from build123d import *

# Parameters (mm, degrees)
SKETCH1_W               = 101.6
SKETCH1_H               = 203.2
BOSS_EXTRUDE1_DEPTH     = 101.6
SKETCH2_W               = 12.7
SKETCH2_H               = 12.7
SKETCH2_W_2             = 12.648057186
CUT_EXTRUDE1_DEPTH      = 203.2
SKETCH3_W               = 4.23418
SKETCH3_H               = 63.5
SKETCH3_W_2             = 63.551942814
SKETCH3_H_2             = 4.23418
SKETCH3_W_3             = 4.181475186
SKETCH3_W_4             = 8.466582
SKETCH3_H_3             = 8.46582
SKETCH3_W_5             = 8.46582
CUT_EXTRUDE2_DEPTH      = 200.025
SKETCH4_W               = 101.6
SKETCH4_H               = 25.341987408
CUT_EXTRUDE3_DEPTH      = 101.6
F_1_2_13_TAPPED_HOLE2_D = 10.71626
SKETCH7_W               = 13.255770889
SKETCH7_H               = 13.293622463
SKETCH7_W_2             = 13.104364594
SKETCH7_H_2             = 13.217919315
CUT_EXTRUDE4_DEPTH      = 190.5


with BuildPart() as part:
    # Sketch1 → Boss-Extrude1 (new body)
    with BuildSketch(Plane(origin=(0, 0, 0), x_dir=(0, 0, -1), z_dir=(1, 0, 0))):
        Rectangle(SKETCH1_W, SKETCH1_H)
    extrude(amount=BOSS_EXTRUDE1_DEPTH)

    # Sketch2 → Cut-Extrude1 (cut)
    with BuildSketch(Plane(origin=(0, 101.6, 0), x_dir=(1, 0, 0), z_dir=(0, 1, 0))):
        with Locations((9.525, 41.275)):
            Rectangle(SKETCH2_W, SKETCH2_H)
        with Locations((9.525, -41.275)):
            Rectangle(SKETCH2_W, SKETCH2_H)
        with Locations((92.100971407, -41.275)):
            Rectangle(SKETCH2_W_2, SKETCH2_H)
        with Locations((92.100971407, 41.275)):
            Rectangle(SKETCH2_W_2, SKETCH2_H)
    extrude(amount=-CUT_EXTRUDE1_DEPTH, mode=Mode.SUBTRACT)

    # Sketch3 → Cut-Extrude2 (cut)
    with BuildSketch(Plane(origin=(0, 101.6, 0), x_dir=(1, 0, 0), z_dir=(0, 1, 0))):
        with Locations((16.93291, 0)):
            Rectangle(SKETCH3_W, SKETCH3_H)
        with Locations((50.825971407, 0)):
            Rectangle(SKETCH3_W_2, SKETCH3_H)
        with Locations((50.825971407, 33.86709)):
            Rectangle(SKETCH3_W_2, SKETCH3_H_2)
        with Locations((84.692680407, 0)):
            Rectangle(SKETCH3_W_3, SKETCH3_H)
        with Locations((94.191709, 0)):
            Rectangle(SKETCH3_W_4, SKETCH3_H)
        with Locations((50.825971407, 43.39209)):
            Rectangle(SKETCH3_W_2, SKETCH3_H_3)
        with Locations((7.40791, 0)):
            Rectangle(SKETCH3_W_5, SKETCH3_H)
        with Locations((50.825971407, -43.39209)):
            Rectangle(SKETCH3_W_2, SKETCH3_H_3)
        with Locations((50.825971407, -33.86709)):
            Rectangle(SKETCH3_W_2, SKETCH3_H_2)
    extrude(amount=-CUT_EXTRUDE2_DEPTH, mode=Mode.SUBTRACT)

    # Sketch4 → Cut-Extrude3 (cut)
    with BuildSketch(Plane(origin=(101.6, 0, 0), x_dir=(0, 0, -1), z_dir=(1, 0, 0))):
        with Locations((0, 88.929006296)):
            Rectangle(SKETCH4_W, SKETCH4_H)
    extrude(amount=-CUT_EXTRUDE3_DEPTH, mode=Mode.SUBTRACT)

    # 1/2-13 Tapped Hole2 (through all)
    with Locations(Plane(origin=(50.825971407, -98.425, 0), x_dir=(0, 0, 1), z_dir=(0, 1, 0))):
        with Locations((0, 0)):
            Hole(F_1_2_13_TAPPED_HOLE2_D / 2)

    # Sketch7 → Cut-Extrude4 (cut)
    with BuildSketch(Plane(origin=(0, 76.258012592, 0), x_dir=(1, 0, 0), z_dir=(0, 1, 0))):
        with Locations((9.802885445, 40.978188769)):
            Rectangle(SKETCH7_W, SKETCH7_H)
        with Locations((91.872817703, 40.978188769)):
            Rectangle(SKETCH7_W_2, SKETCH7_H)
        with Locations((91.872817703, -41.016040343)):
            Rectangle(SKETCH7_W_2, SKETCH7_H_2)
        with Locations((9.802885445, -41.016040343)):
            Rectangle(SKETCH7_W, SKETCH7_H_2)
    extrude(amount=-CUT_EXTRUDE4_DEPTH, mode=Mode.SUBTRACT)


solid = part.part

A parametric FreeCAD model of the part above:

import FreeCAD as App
import Part
import Sketcher
from FreeCAD import Vector
Q = App.Units.Quantity

doc = App.newDocument("Part")
body = doc.addObject("PartDesign::Body", "Body")

# Sketch on YZ plane
sketch1 = doc.addObject("Sketcher::SketchObject", "Sketch")
body.addObject(sketch1)
sketch1.AttachmentSupport = (doc.YZ_Plane, [""])
sketch1.MapMode = "FlatFace"
sketch1.addGeometry([
    Part.LineSegment(Vector(101.6, 50.8, 0), Vector(-101.6, 50.8, 0)),
    Part.LineSegment(Vector(-101.6, 50.8, 0), Vector(-101.6, -50.8, 0)),
    Part.LineSegment(Vector(-101.6, -50.8, 0), Vector(101.6, -50.8, 0)),
    Part.LineSegment(Vector(101.6, -50.8, 0), Vector(101.6, 50.8, 0)),
], False)
sketch1.addConstraint([
    Sketcher.Constraint("Coincident", 0, 2, 1, 1),
    Sketcher.Constraint("Coincident", 1, 2, 2, 1),
    Sketcher.Constraint("Coincident", 2, 2, 3, 1),
    Sketcher.Constraint("Coincident", 3, 2, 0, 1),
    Sketcher.Constraint("Horizontal", 0),
    Sketcher.Constraint("Vertical", 1),
    Sketcher.Constraint("Horizontal", 2),
    Sketcher.Constraint("Vertical", 3),
    Sketcher.Constraint("Symmetric", 0, 2, 2, 2, -1, 1),
    Sketcher.Constraint("DistanceX", 0, 2, 0, 1, Q("8 in")),
    Sketcher.Constraint("DistanceY", 1, 2, 1, 1, Q("4 in")),
])
pad1 = doc.addObject("PartDesign::Pad", "Pad")
body.addObject(pad1)
pad1.Profile = sketch1
pad1.Length = Q("4 in")

# Sketch on XZ plane
sketch2 = doc.addObject("Sketcher::SketchObject", "Sketch001")
body.addObject(sketch2)
sketch2.AttachmentSupport = (doc.XZ_Plane, [""])
sketch2.MapMode = "FlatFace"
sketch2.AttachmentOffset = App.Placement(Vector(0, 0, -4 * 25.4), App.Rotation())
sketch2.addGeometry([
    Part.LineSegment(Vector(3.175, -47.625, 0), Vector(3.175, -34.925, 0)),  # 0
    Part.LineSegment(Vector(3.175, -34.925, 0), Vector(15.875, -34.925, 0)),  # 1
    Part.LineSegment(Vector(15.875, -34.925, 0), Vector(15.875, -47.625, 0)),  # 2
    Part.LineSegment(Vector(15.875, -47.625, 0), Vector(3.175, -47.625, 0)),  # 3
    Part.LineSegment(Vector(3.175, 34.925, 0), Vector(3.175, 47.625, 0)),  # 4
    Part.LineSegment(Vector(3.175, 47.625, 0), Vector(15.875, 47.625, 0)),  # 5
    Part.LineSegment(Vector(15.875, 47.625, 0), Vector(15.875, 34.925, 0)),  # 6
    Part.LineSegment(Vector(15.875, 34.925, 0), Vector(3.175, 34.925, 0)),  # 7
    Part.LineSegment(Vector(85.776943, 34.925, 0), Vector(85.776943, 47.625, 0)),  # 8
    Part.LineSegment(Vector(85.776943, 47.625, 0), Vector(98.425, 47.625, 0)),  # 9
    Part.LineSegment(Vector(98.425, 47.625, 0), Vector(98.425, 34.925, 0)),  # 10
    Part.LineSegment(Vector(98.425, 34.925, 0), Vector(85.776943, 34.925, 0)),  # 11
    Part.LineSegment(Vector(85.776943, -47.625, 0), Vector(85.776943, -34.925, 0)),  # 12
    Part.LineSegment(Vector(85.776943, -34.925, 0), Vector(98.425, -34.925, 0)),  # 13
    Part.LineSegment(Vector(98.425, -34.925, 0), Vector(98.425, -47.625, 0)),  # 14
    Part.LineSegment(Vector(98.425, -47.625, 0), Vector(85.776943, -47.625, 0)),  # 15
], False)
sketch2.addConstraint([
    Sketcher.Constraint("Coincident", 0, 2, 1, 1),
    Sketcher.Constraint("Coincident", 1, 2, 2, 1),
    Sketcher.Constraint("Coincident", 2, 2, 3, 1),
    Sketcher.Constraint("Coincident", 3, 2, 0, 1),
    Sketcher.Constraint("Coincident", 4, 2, 5, 1),
    Sketcher.Constraint("Coincident", 5, 2, 6, 1),
    Sketcher.Constraint("Coincident", 6, 2, 7, 1),
    Sketcher.Constraint("Coincident", 7, 2, 4, 1),
    Sketcher.Constraint("Coincident", 8, 2, 9, 1),
    Sketcher.Constraint("Coincident", 9, 2, 10, 1),
    Sketcher.Constraint("Coincident", 10, 2, 11, 1),
    Sketcher.Constraint("Coincident", 11, 2, 8, 1),
    Sketcher.Constraint("Coincident", 12, 2, 13, 1),
    Sketcher.Constraint("Coincident", 13, 2, 14, 1),
    Sketcher.Constraint("Coincident", 14, 2, 15, 1),
    Sketcher.Constraint("Coincident", 15, 2, 12, 1),
    Sketcher.Constraint("Vertical", 0),
    Sketcher.Constraint("Horizontal", 1),
    Sketcher.Constraint("Vertical", 2),
    Sketcher.Constraint("Horizontal", 3),
    Sketcher.Constraint("Vertical", 4),
    Sketcher.Constraint("Horizontal", 5),
    Sketcher.Constraint("Vertical", 6),
    Sketcher.Constraint("Horizontal", 7),
    Sketcher.Constraint("Vertical", 8),
    Sketcher.Constraint("Horizontal", 9),
    Sketcher.Constraint("Vertical", 10),
    Sketcher.Constraint("Horizontal", 11),
    Sketcher.Constraint("Vertical", 12),
    Sketcher.Constraint("Horizontal", 13),
    Sketcher.Constraint("Vertical", 14),
    Sketcher.Constraint("Horizontal", 15),
    Sketcher.Constraint("Symmetric", 3, 2, 4, 2, -1),
    Sketcher.Constraint("Symmetric", 1, 2, 6, 2, -1),
    Sketcher.Constraint("Symmetric", 11, 2, 12, 2, -1),
    Sketcher.Constraint("Symmetric", 9, 2, 14, 2, -1),
    Sketcher.Constraint("Horizontal", 5, 2, 8, 2),
    Sketcher.Constraint("Horizontal", 7, 2, 10, 2),
    Sketcher.Constraint("Equal", 7, 0),
    Sketcher.Constraint("DistanceX", 1, 1, 1, 2, Q("0.5 in")),
    Sketcher.Constraint("DistanceY", 0, 2, 4, 2, Q("3.25 in")),
    Sketcher.Constraint("DistanceX", 5, 2, 9, 2, Q("3.25 in")),
    Sketcher.Constraint("DistanceX", -1, 1, 0, 2, Q("0.125 in")),
    Sketcher.Constraint("DistanceX", 9, 1, 9, 2, Q("12.648057 mm")),
])
pocket1 = doc.addObject("PartDesign::Pocket", "Pocket")
body.addObject(pocket1)
pocket1.Profile = sketch2
pocket1.Length = Q("8 in")
pocket1.Reversed = True

# Sketch on XZ plane
sketch3 = doc.addObject("Sketcher::SketchObject", "Sketch002")
body.addObject(sketch3)
sketch3.AttachmentSupport = (doc.XZ_Plane, [""])
sketch3.MapMode = "FlatFace"
sketch3.AttachmentOffset = App.Placement(Vector(0, 0, -4 * 25.4), App.Rotation())
sketch3.addGeometry([
    Part.LineSegment(Vector(14.81582, -31.75, 0), Vector(14.81582, 31.75, 0)),  # 0
    Part.LineSegment(Vector(14.81582, 31.75, 0), Vector(19.05, 31.75, 0)),  # 1
    Part.LineSegment(Vector(19.05, 31.75, 0), Vector(19.05, 35.98418, 0)),  # 2
    Part.LineSegment(Vector(19.05, 35.98418, 0), Vector(82.601943, 35.98418, 0)),  # 3
    Part.LineSegment(Vector(82.601943, 35.98418, 0), Vector(82.601943, 31.75, 0)),  # 4
    Part.LineSegment(Vector(82.601943, 31.75, 0), Vector(86.783418, 31.75, 0)),  # 5
    Part.LineSegment(Vector(86.783418, 31.75, 0), Vector(86.783418, -31.75, 0)),  # 6
    Part.LineSegment(Vector(86.783418, -31.75, 0), Vector(82.601943, -31.75, 0)),  # 7
    Part.LineSegment(Vector(82.601943, -31.75, 0), Vector(82.601943, -35.98418, 0)),  # 8
    Part.LineSegment(Vector(82.601943, -35.98418, 0), Vector(19.05, -35.98418, 0)),  # 9
    Part.LineSegment(Vector(19.05, -35.98418, 0), Vector(19.05, -31.75, 0)),  # 10
    Part.LineSegment(Vector(19.05, -31.75, 0), Vector(14.81582, -31.75, 0)),  # 11
    Part.LineSegment(Vector(89.958418, -31.75, 0), Vector(89.958418, 31.75, 0)),  # 12
    Part.LineSegment(Vector(89.958418, 31.75, 0), Vector(98.425, 31.75, 0)),  # 13
    Part.LineSegment(Vector(98.425, 31.75, 0), Vector(98.425, -31.75, 0)),  # 14
    Part.LineSegment(Vector(98.425, -31.75, 0), Vector(89.958418, -31.75, 0)),  # 15
    Part.LineSegment(Vector(19.05, -47.625, 0), Vector(19.05, -39.15918, 0)),  # 16
    Part.LineSegment(Vector(19.05, -39.15918, 0), Vector(82.601943, -39.15918, 0)),  # 17
    Part.LineSegment(Vector(82.601943, -39.15918, 0), Vector(82.601943, -47.625, 0)),  # 18
    Part.LineSegment(Vector(82.601943, -47.625, 0), Vector(19.05, -47.625, 0)),  # 19
    Part.LineSegment(Vector(3.175, -31.75, 0), Vector(3.175, 31.75, 0)),  # 20
    Part.LineSegment(Vector(3.175, 31.75, 0), Vector(11.64082, 31.75, 0)),  # 21
    Part.LineSegment(Vector(11.64082, 31.75, 0), Vector(11.64082, -31.75, 0)),  # 22
    Part.LineSegment(Vector(11.64082, -31.75, 0), Vector(3.175, -31.75, 0)),  # 23
    Part.LineSegment(Vector(19.05, 39.15918, 0), Vector(19.05, 47.625, 0)),  # 24
    Part.LineSegment(Vector(19.05, 47.625, 0), Vector(82.601943, 47.625, 0)),  # 25
    Part.LineSegment(Vector(82.601943, 47.625, 0), Vector(82.601943, 39.15918, 0)),  # 26
    Part.LineSegment(Vector(82.601943, 39.15918, 0), Vector(19.05, 39.15918, 0)),  # 27
], False)
sketch3.addConstraint([
    Sketcher.Constraint("Coincident", 0, 2, 1, 1),
    Sketcher.Constraint("Coincident", 1, 2, 2, 1),
    Sketcher.Constraint("Coincident", 2, 2, 3, 1),
    Sketcher.Constraint("Coincident", 3, 2, 4, 1),
    Sketcher.Constraint("Coincident", 4, 2, 5, 1),
    Sketcher.Constraint("Coincident", 5, 2, 6, 1),
    Sketcher.Constraint("Coincident", 6, 2, 7, 1),
    Sketcher.Constraint("Coincident", 7, 2, 8, 1),
    Sketcher.Constraint("Coincident", 8, 2, 9, 1),
    Sketcher.Constraint("Coincident", 9, 2, 10, 1),
    Sketcher.Constraint("Coincident", 10, 2, 11, 1),
    Sketcher.Constraint("Coincident", 11, 2, 0, 1),
    Sketcher.Constraint("Coincident", 12, 2, 13, 1),
    Sketcher.Constraint("Coincident", 13, 2, 14, 1),
    Sketcher.Constraint("Coincident", 14, 2, 15, 1),
    Sketcher.Constraint("Coincident", 15, 2, 12, 1),
    Sketcher.Constraint("Coincident", 16, 2, 17, 1),
    Sketcher.Constraint("Coincident", 17, 2, 18, 1),
    Sketcher.Constraint("Coincident", 18, 2, 19, 1),
    Sketcher.Constraint("Coincident", 19, 2, 16, 1),
    Sketcher.Constraint("Coincident", 20, 2, 21, 1),
    Sketcher.Constraint("Coincident", 21, 2, 22, 1),
    Sketcher.Constraint("Coincident", 22, 2, 23, 1),
    Sketcher.Constraint("Coincident", 23, 2, 20, 1),
    Sketcher.Constraint("Coincident", 24, 2, 25, 1),
    Sketcher.Constraint("Coincident", 25, 2, 26, 1),
    Sketcher.Constraint("Coincident", 26, 2, 27, 1),
    Sketcher.Constraint("Coincident", 27, 2, 24, 1),
    Sketcher.Constraint("Vertical", 0),
    Sketcher.Constraint("Horizontal", 1),
    Sketcher.Constraint("Vertical", 2),
    Sketcher.Constraint("Horizontal", 3),
    Sketcher.Constraint("Vertical", 4),
    Sketcher.Constraint("Horizontal", 5),
    Sketcher.Constraint("Vertical", 6),
    Sketcher.Constraint("Horizontal", 7),
    Sketcher.Constraint("Vertical", 8),
    Sketcher.Constraint("Horizontal", 9),
    Sketcher.Constraint("Vertical", 10),
    Sketcher.Constraint("Horizontal", 11),
    Sketcher.Constraint("Vertical", 12),
    Sketcher.Constraint("Horizontal", 13),
    Sketcher.Constraint("Vertical", 14),
    Sketcher.Constraint("Horizontal", 15),
    Sketcher.Constraint("Vertical", 16),
    Sketcher.Constraint("Horizontal", 17),
    Sketcher.Constraint("Vertical", 18),
    Sketcher.Constraint("Horizontal", 19),
    Sketcher.Constraint("Vertical", 20),
    Sketcher.Constraint("Horizontal", 21),
    Sketcher.Constraint("Vertical", 22),
    Sketcher.Constraint("Horizontal", 23),
    Sketcher.Constraint("Vertical", 24),
    Sketcher.Constraint("Horizontal", 25),
    Sketcher.Constraint("Vertical", 26),
    Sketcher.Constraint("Horizontal", 27),
    Sketcher.Constraint("Symmetric", 4, 2, 7, 2, -1),
    Sketcher.Constraint("Symmetric", 2, 2, 9, 2, -1),
    Sketcher.Constraint("Symmetric", 19, 2, 24, 2, -1),
    Sketcher.Constraint("Symmetric", 17, 2, 26, 2, -1),
    Sketcher.Constraint("Horizontal", 1, 2, 4, 2),
    Sketcher.Constraint("Horizontal", 7, 2, 10, 2),
    Sketcher.Constraint("Horizontal", 5, 2, 12, 2),
    Sketcher.Constraint("Horizontal", 11, 2, 14, 2),
    Sketcher.Constraint("Horizontal", 13, 2, 20, 2),
    Sketcher.Constraint("Horizontal", 15, 2, 22, 2),
    Sketcher.Constraint("Vertical", 10, 2, 16, 2),
    Sketcher.Constraint("Vertical", 8, 2, 17, 2),
    Sketcher.Constraint("Equal", 11, 2),
    Sketcher.Constraint("Equal", 23, 16),
    Sketcher.Constraint("DistanceY", 0, 1, 0, 2, Q("2.5 in")),
    Sketcher.Constraint("DistanceX", -1, 1, 1, 2, Q("0.75 in")),
    Sketcher.Constraint("DistanceX", 1, 1, 1, 2, Q("0.1667 in")),
    Sketcher.Constraint("DistanceX", 21, 1, 21, 2, Q("0.3333 in")),
    Sketcher.Constraint("DistanceX", -1, 1, 13, 2, Q("3.875 in")),
    Sketcher.Constraint("DistanceY", 18, 2, -1, 1, Q("1.875 in")),
    Sketcher.Constraint("DistanceX", -1, 1, 20, 2, Q("0.125 in")),
    Sketcher.Constraint("DistanceX", 5, 2, 12, 2, Q("0.125 in")),
    Sketcher.Constraint("DistanceX", 3, 1, 3, 2, Q("63.551943 mm")),
    Sketcher.Constraint("DistanceX", 5, 1, 5, 2, Q("4.181475 mm")),
])
pocket2 = doc.addObject("PartDesign::Pocket", "Pocket001")
body.addObject(pocket2)
pocket2.Profile = sketch3
pocket2.Length = Q("7.875 in")
pocket2.Reversed = True

# Sketch on YZ plane
sketch4 = doc.addObject("Sketcher::SketchObject", "Sketch003")
body.addObject(sketch4)
sketch4.AttachmentSupport = (doc.YZ_Plane, [""])
sketch4.MapMode = "FlatFace"
sketch4.AttachmentOffset = App.Placement(Vector(0, 0, 4 * 25.4), App.Rotation())
sketch4.addGeometry([
    Part.LineSegment(Vector(101.6, 50.8, 0), Vector(76.258013, 50.8, 0)),
    Part.LineSegment(Vector(76.258013, 50.8, 0), Vector(76.258013, -50.8, 0)),
    Part.LineSegment(Vector(76.258013, -50.8, 0), Vector(101.6, -50.8, 0)),
    Part.LineSegment(Vector(101.6, -50.8, 0), Vector(101.6, 50.8, 0)),
], False)
sketch4.addConstraint([
    Sketcher.Constraint("Coincident", 0, 2, 1, 1),
    Sketcher.Constraint("Coincident", 1, 2, 2, 1),
    Sketcher.Constraint("Coincident", 2, 2, 3, 1),
    Sketcher.Constraint("Coincident", 3, 2, 0, 1),
    Sketcher.Constraint("Horizontal", 0),
    Sketcher.Constraint("Vertical", 1),
    Sketcher.Constraint("Horizontal", 2),
    Sketcher.Constraint("Vertical", 3),
    Sketcher.Constraint("DistanceY", 1, 2, 1, 1, Q("4 in")),
    Sketcher.Constraint("DistanceY", -1, 1, 0, 2, Q("2 in")),
    Sketcher.Constraint("DistanceX", -1, 1, 2, 2, Q("4 in")),
    Sketcher.Constraint("DistanceX", 0, 2, 0, 1, Q("25.341987 mm")),
])
pocket3 = doc.addObject("PartDesign::Pocket", "Pocket002")
body.addObject(pocket3)
pocket3.Profile = sketch4
pocket3.Length = Q("4 in")

# Sketch on XZ plane
sketch5 = doc.addObject("Sketcher::SketchObject", "Sketch004")
body.addObject(sketch5)
sketch5.AttachmentSupport = (doc.XZ_Plane, [""])
sketch5.MapMode = "FlatFace"
sketch5.AttachmentOffset = App.Placement(Vector(0, 0, 3.875 * 25.4), App.Rotation())
sketch5.addGeometry(Part.Circle(Vector(50.825971, 0, 0), Vector(0, 0, 1), 5.35813), False)
sketch5.addConstraint([
    Sketcher.Constraint("PointOnObject", 0, 3, -1),
    Sketcher.Constraint("Diameter", 0, Q("0.4219 in")),
    Sketcher.Constraint("DistanceX", -1, 1, 0, 3, Q("50.825971 mm")),
])
doc.recompute()
hole = doc.addObject("PartDesign::Hole", "Hole")
body.addObject(hole)
hole.Profile = sketch5
hole.ThreadType = "None"
hole.Diameter = Q("0.4219 in")
hole.DepthType = "ThroughAll"
hole.Reversed = True

# Sketch on XZ plane
sketch6 = doc.addObject("Sketcher::SketchObject", "Sketch005")
body.addObject(sketch6)
sketch6.AttachmentSupport = (doc.XZ_Plane, [""])
sketch6.MapMode = "FlatFace"
sketch6.AttachmentOffset = App.Placement(Vector(0, 0, -76.258013), App.Rotation())
sketch6.addGeometry([
    Part.LineSegment(Vector(3.175, -47.625, 0), Vector(3.175, -34.331378, 0)),  # 0
    Part.LineSegment(Vector(3.175, -34.331378, 0), Vector(16.430771, -34.331378, 0)),  # 1
    Part.LineSegment(Vector(16.430771, -34.331378, 0), Vector(16.430771, -47.625, 0)),  # 2
    Part.LineSegment(Vector(16.430771, -47.625, 0), Vector(3.175, -47.625, 0)),  # 3
    Part.LineSegment(Vector(85.320635, -47.625, 0), Vector(85.320635, -34.331378, 0)),  # 4
    Part.LineSegment(Vector(85.320635, -34.331378, 0), Vector(98.425, -34.331378, 0)),  # 5
    Part.LineSegment(Vector(98.425, -34.331378, 0), Vector(98.425, -47.625, 0)),  # 6
    Part.LineSegment(Vector(98.425, -47.625, 0), Vector(85.320635, -47.625, 0)),  # 7
    Part.LineSegment(Vector(85.320635, 34.407081, 0), Vector(85.320635, 47.625, 0)),  # 8
    Part.LineSegment(Vector(85.320635, 47.625, 0), Vector(98.425, 47.625, 0)),  # 9
    Part.LineSegment(Vector(98.425, 47.625, 0), Vector(98.425, 34.407081, 0)),  # 10
    Part.LineSegment(Vector(98.425, 34.407081, 0), Vector(85.320635, 34.407081, 0)),  # 11
    Part.LineSegment(Vector(3.175, 34.407081, 0), Vector(3.175, 47.625, 0)),  # 12
    Part.LineSegment(Vector(3.175, 47.625, 0), Vector(16.430771, 47.625, 0)),  # 13
    Part.LineSegment(Vector(16.430771, 47.625, 0), Vector(16.430771, 34.407081, 0)),  # 14
    Part.LineSegment(Vector(16.430771, 34.407081, 0), Vector(3.175, 34.407081, 0)),  # 15
], False)
sketch6.addConstraint([
    Sketcher.Constraint("Coincident", 0, 2, 1, 1),
    Sketcher.Constraint("Coincident", 1, 2, 2, 1),
    Sketcher.Constraint("Coincident", 2, 2, 3, 1),
    Sketcher.Constraint("Coincident", 3, 2, 0, 1),
    Sketcher.Constraint("Coincident", 4, 2, 5, 1),
    Sketcher.Constraint("Coincident", 5, 2, 6, 1),
    Sketcher.Constraint("Coincident", 6, 2, 7, 1),
    Sketcher.Constraint("Coincident", 7, 2, 4, 1),
    Sketcher.Constraint("Coincident", 8, 2, 9, 1),
    Sketcher.Constraint("Coincident", 9, 2, 10, 1),
    Sketcher.Constraint("Coincident", 10, 2, 11, 1),
    Sketcher.Constraint("Coincident", 11, 2, 8, 1),
    Sketcher.Constraint("Coincident", 12, 2, 13, 1),
    Sketcher.Constraint("Coincident", 13, 2, 14, 1),
    Sketcher.Constraint("Coincident", 14, 2, 15, 1),
    Sketcher.Constraint("Coincident", 15, 2, 12, 1),
    Sketcher.Constraint("Vertical", 0),
    Sketcher.Constraint("Horizontal", 1),
    Sketcher.Constraint("Vertical", 2),
    Sketcher.Constraint("Horizontal", 3),
    Sketcher.Constraint("Vertical", 4),
    Sketcher.Constraint("Horizontal", 5),
    Sketcher.Constraint("Vertical", 6),
    Sketcher.Constraint("Horizontal", 7),
    Sketcher.Constraint("Vertical", 8),
    Sketcher.Constraint("Horizontal", 9),
    Sketcher.Constraint("Vertical", 10),
    Sketcher.Constraint("Horizontal", 11),
    Sketcher.Constraint("Vertical", 12),
    Sketcher.Constraint("Horizontal", 13),
    Sketcher.Constraint("Vertical", 14),
    Sketcher.Constraint("Horizontal", 15),
    Sketcher.Constraint("Symmetric", 7, 2, 8, 2, -1),
    Sketcher.Constraint("Symmetric", 3, 2, 12, 2, -1),
    Sketcher.Constraint("Horizontal", 1, 2, 4, 2),
    Sketcher.Constraint("Horizontal", 3, 2, 6, 2),
    Sketcher.Constraint("Horizontal", 11, 2, 14, 2),
    Sketcher.Constraint("Vertical", 6, 2, 9, 2),
    Sketcher.Constraint("Vertical", 2, 2, 13, 2),
    Sketcher.Constraint("DistanceX", 0, 2, 5, 2, Q("3.75 in")),
    Sketcher.Constraint("DistanceY", 7, 2, 8, 2, Q("3.75 in")),
    Sketcher.Constraint("DistanceX", -1, 1, 0, 2, Q("0.125 in")),
    Sketcher.Constraint("DistanceX", 1, 1, 1, 2, Q("13.255771 mm")),
    Sketcher.Constraint("DistanceY", 8, 1, 8, 2, Q("13.217919 mm")),
    Sketcher.Constraint("DistanceX", 5, 1, 5, 2, Q("13.104365 mm")),
    Sketcher.Constraint("DistanceY", 0, 1, 0, 2, Q("13.293622 mm")),
])
pocket4 = doc.addObject("PartDesign::Pocket", "Pocket003")
body.addObject(pocket4)
pocket4.Profile = sketch6
pocket4.Length = Q("7.5 in")
pocket4.Reversed = True

doc.recompute()
